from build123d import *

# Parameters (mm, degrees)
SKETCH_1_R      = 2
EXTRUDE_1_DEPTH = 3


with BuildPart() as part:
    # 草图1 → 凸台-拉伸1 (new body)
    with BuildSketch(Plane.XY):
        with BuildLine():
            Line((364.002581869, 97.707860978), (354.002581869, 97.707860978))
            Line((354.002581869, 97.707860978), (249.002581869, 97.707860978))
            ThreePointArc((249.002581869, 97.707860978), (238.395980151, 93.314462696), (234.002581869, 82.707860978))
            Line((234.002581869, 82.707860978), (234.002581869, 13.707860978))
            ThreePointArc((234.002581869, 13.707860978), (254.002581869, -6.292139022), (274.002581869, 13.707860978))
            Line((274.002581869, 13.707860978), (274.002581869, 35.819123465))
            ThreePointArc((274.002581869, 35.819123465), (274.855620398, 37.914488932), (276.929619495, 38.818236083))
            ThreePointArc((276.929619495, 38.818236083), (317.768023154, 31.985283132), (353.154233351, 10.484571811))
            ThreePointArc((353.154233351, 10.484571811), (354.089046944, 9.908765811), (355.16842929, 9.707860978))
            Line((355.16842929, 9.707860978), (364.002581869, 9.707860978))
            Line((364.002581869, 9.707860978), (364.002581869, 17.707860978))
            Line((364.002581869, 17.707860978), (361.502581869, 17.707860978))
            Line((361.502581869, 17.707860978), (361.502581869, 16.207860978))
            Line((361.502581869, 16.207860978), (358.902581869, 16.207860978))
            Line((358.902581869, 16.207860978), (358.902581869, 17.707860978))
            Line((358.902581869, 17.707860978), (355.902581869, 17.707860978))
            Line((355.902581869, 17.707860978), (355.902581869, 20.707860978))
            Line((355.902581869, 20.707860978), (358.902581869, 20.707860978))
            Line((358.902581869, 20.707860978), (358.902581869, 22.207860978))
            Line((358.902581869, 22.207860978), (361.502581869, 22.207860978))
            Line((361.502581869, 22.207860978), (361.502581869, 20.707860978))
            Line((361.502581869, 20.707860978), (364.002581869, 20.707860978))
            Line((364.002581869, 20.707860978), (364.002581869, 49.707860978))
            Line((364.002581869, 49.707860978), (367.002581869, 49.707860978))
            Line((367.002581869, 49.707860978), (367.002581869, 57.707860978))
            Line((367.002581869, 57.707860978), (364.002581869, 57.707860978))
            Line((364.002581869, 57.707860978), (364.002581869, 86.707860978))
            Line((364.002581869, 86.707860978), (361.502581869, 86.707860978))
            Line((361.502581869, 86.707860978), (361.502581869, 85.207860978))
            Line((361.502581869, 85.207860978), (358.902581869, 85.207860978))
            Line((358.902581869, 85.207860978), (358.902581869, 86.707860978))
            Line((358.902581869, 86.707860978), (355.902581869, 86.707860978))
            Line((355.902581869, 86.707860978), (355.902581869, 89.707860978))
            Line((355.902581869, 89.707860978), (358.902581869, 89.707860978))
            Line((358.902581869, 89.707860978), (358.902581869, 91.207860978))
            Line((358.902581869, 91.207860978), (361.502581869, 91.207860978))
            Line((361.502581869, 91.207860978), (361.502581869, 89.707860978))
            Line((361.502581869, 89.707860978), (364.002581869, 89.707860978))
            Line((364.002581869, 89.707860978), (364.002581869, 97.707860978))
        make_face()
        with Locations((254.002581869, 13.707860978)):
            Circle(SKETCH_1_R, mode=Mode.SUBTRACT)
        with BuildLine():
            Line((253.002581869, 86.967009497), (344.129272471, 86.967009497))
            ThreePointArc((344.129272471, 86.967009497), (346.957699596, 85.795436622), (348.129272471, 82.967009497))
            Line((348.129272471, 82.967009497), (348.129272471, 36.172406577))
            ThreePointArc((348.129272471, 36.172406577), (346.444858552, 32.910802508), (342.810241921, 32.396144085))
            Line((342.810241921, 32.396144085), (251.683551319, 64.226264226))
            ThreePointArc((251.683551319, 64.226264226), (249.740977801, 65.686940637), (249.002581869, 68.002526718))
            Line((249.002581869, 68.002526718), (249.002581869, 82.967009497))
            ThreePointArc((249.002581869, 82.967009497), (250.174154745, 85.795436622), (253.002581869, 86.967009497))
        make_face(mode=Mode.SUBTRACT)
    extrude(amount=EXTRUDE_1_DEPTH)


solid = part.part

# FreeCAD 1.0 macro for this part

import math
import FreeCAD as App
import Part
import Sketcher

V = App.Vector
Q = App.Units.Quantity

doc = App.newDocument("Part")
params = doc.addObject("Spreadsheet::Sheet", "Params")
for row, (alias, value) in enumerate([
    ("sketch1_diameter", "4 mm"),
    ("sketch1_radius", "15 mm"),
    ("sketch1_radius2", "20 mm"),
    ("sketch1_radius3", "3 mm"),
    ("sketch1_radius4", "4 mm"),
    ("pad1_length", "3 mm"),
], start=1):
    params.set(f"A{row}", alias)
    params.set(f"B{row}", "=" + value)
    params.setAlias(f"B{row}", alias)

body = doc.addObject("PartDesign::Body", "Body")

# Sketch on XY plane
sketch1 = body.newObject("Sketcher::SketchObject", "Sketch")
sketch1.AttachmentSupport = (doc.getObject("XY_Plane"), [""])
sketch1.MapMode = "FlatFace"
sketch1.addGeometry(Part.LineSegment(V(364.002582, 97.707861, 0), V(249.002582, 97.707861, 0)), False)
sketch1.addGeometry(Part.ArcOfCircle(Part.Circle(V(249.002582, 82.707861, 0), V(0, 0, 1), 15), math.radians(90), math.radians(180)), False)
sketch1.addGeometry(Part.LineSegment(V(234.002582, 82.707861, 0), V(234.002582, 13.707861, 0)), False)
sketch1.addGeometry(Part.ArcOfCircle(Part.Circle(V(254.002582, 13.707861, 0), V(0, 0, 1), 20), math.radians(180), math.radians(360)), False)
sketch1.addGeometry(Part.LineSegment(V(274.002582, 13.707861, 0), V(274.002582, 35.819123, 0)), False)
sketch1.addGeometry(Part.ArcOfCircle(Part.Circle(V(277.002582, 35.819123, 0), V(0, 0, 1), 3), math.radians(91.393616), math.radians(180)), False)
sketch1.addGeometry(Part.ArcOfCircle(Part.Circle(V(279.594261, -70.711645, 0), V(0, 0, 1), 109.562289), math.radians(47.824895), math.radians(91.393616)), False)
sketch1.addGeometry(Part.ArcOfCircle(Part.Circle(V(355.168429, 12.707861, 0), V(0, 0, 1), 3), math.radians(-132.175105), math.radians(-90)), False)
sketch1.addGeometry(Part.LineSegment(V(355.168429, 9.707861, 0), V(364.002582, 9.707861, 0)), False)
sketch1.addGeometry(Part.LineSegment(V(364.002582, 9.707861, 0), V(364.002582, 17.707861, 0)), False)
sketch1.addGeometry(Part.LineSegment(V(364.002582, 17.707861, 0), V(361.502582, 17.707861, 0)), False)
sketch1.addGeometry(Part.LineSegment(V(361.502582, 17.707861, 0), V(361.502582, 16.207861, 0)), False)
sketch1.addGeometry(Part.LineSegment(V(361.502582, 16.207861, 0), V(358.902582, 16.207861, 0)), False)
sketch1.addGeometry(Part.LineSegment(V(358.902582, 16.207861, 0), V(358.902582, 17.707861, 0)), False)
sketch1.addGeometry(Part.LineSegment(V(358.902582, 17.707861, 0), V(355.902582, 17.707861, 0)), False)
sketch1.addGeometry(Part.LineSegment(V(355.902582, 17.707861, 0), V(355.902582, 20.707861, 0)), False)
sketch1.addGeometry(Part.LineSegment(V(355.902582, 20.707861, 0), V(358.902582, 20.707861, 0)), False)
sketch1.addGeometry(Part.LineSegment(V(358.902582, 20.707861, 0), V(358.902582, 22.207861, 0)), False)
sketch1.addGeometry(Part.LineSegment(V(358.902582, 22.207861, 0), V(361.502582, 22.207861, 0)), False)
sketch1.addGeometry(Part.LineSegment(V(361.502582, 22.207861, 0), V(361.502582, 20.707861, 0)), False)
sketch1.addGeometry(Part.LineSegment(V(361.502582, 20.707861, 0), V(364.002582, 20.707861, 0)), False)
sketch1.addGeometry(Part.LineSegment(V(364.002582, 20.707861, 0), V(364.002582, 49.707861, 0)), False)
sketch1.addGeometry(Part.LineSegment(V(364.002582, 49.707861, 0), V(367.002582, 49.707861, 0)), False)
sketch1.addGeometry(Part.LineSegment(V(367.002582, 49.707861, 0), V(367.002582, 57.707861, 0)), False)
sketch1.addGeometry(Part.LineSegment(V(367.002582, 57.707861, 0), V(364.002582, 57.707861, 0)), False)
sketch1.addGeometry(Part.LineSegment(V(364.002582, 57.707861, 0), V(364.002582, 86.707861, 0)), False)
sketch1.addGeometry(Part.LineSegment(V(364.002582, 86.707861, 0), V(361.502582, 86.707861, 0)), False)
sketch1.addGeometry(Part.LineSegment(V(361.502582, 86.707861, 0), V(361.502582, 85.207861, 0)), False)
sketch1.addGeometry(Part.LineSegment(V(361.502582, 85.207861, 0), V(358.902582, 85.207861, 0)), False)
sketch1.addGeometry(Part.LineSegment(V(358.902582, 85.207861, 0), V(358.902582, 86.707861, 0)), False)
sketch1.addGeometry(Part.LineSegment(V(358.902582, 86.707861, 0), V(355.902582, 86.707861, 0)), False)
sketch1.addGeometry(Part.LineSegment(V(355.902582, 86.707861, 0), V(355.902582, 89.707861, 0)), False)
sketch1.addGeometry(Part.LineSegment(V(355.902582, 89.707861, 0), V(358.902582, 89.707861, 0)), False)
sketch1.addGeometry(Part.LineSegment(V(358.902582, 89.707861, 0), V(358.902582, 91.207861, 0)), False)
sketch1.addGeometry(Part.LineSegment(V(358.902582, 91.207861, 0), V(361.502582, 91.207861, 0)), False)
sketch1.addGeometry(Part.LineSegment(V(361.502582, 91.207861, 0), V(361.502582, 89.707861, 0)), False)
sketch1.addGeometry(Part.LineSegment(V(361.502582, 89.707861, 0), V(364.002582, 89.707861, 0)), False)
sketch1.addGeometry(Part.LineSegment(V(364.002582, 89.707861, 0), V(364.002582, 97.707861, 0)), False)
sketch1.addGeometry(Part.Circle(V(254.002582, 13.707861, 0), V(0, 0, 1), 2), False)
sketch1.addGeometry(Part.ArcOfCircle(Part.Circle(V(253.002582, 82.967009, 0), V(0, 0, 1), 4), math.radians(90), math.radians(180)), False)
sketch1.addGeometry(Part.LineSegment(V(253.002582, 86.967009, 0), V(344.129272, 86.967009, 0)), False)
sketch1.addGeometry(Part.ArcOfCircle(Part.Circle(V(344.129272, 82.967009, 0), V(0, 0, 1), 4), math.radians(0), math.radians(90)), False)
sketch1.addGeometry(Part.LineSegment(V(348.129272, 82.967009, 0), V(348.129272, 36.172407, 0)), False)
sketch1.addGeometry(Part.ArcOfCircle(Part.Circle(V(344.129272, 36.172407, 0), V(0, 0, 1), 4), math.radians(-109.254066), math.radians(0)), False)
sketch1.addGeometry(Part.LineSegment(V(342.810242, 32.396144, 0), V(251.683551, 64.226264, 0)), False)
sketch1.addGeometry(Part.ArcOfCircle(Part.Circle(V(253.002582, 68.002527, 0), V(0, 0, 1), 4), math.radians(-180), math.radians(-109.254066)), False)
sketch1.addGeometry(Part.LineSegment(V(249.002582, 68.002527, 0), V(249.002582, 82.967009, 0)), False)
sketch1.addConstraint(Sketcher.Constraint("Tangent", 0, 2, 1, 1))
sketch1.addConstraint(Sketcher.Constraint("Tangent", 1, 2, 2, 1))
sketch1.addConstraint(Sketcher.Constraint("Tangent", 2, 2, 3, 1))
sketch1.addConstraint(Sketcher.Constraint("Tangent", 3, 2, 4, 1))
sketch1.addConstraint(Sketcher.Constraint("Tangent", 4, 2, 5, 2))
sketch1.addConstraint(Sketcher.Constraint("Tangent", 5, 1, 6, 2))
sketch1.addConstraint(Sketcher.Constraint("Tangent", 6, 1, 7, 1))
sketch1.addConstraint(Sketcher.Constraint("Tangent", 7, 2, 8, 1))
sketch1.addConstraint(Sketcher.Constraint("Coincident", 8, 2, 9, 1))
sketch1.addConstraint(Sketcher.Constraint("Coincident", 9, 2, 10, 1))
sketch1.addConstraint(Sketcher.Constraint("Coincident", 10, 2, 11, 1))
sketch1.addConstraint(Sketcher.Constraint("Coincident", 11, 2, 12, 1))
sketch1.addConstraint(Sketcher.Constraint("Coincident", 12, 2, 13, 1))
sketch1.addConstraint(Sketcher.Constraint("Coincident", 13, 2, 14, 1))
sketch1.addConstraint(Sketcher.Constraint("Coincident", 14, 2, 15, 1))
sketch1.addConstraint(Sketcher.Constraint("Coincident", 15, 2, 16, 1))
sketch1.addConstraint(Sketcher.Constraint("Coincident", 16, 2, 17, 1))
sketch1.addConstraint(Sketcher.Constraint("Coincident", 17, 2, 18, 1))
sketch1.addConstraint(Sketcher.Constraint("Coincident", 18, 2, 19, 1))
sketch1.addConstraint(Sketcher.Constraint("Coincident", 19, 2, 20, 1))
sketch1.addConstraint(Sketcher.Constraint("Coincident", 20, 2, 21, 1))
sketch1.addConstraint(Sketcher.Constraint("Coincident", 21, 2, 22, 1))
sketch1.addConstraint(Sketcher.Constraint("Coincident", 22, 2, 23, 1))
sketch1.addConstraint(Sketcher.Constraint("Coincident", 23, 2, 24, 1))
sketch1.addConstraint(Sketcher.Constraint("Coincident", 24, 2, 25, 1))
sketch1.addConstraint(Sketcher.Constraint("Coincident", 25, 2, 26, 1))
sketch1.addConstraint(Sketcher.Constraint("Coincident", 26, 2, 27, 1))
sketch1.addConstraint(Sketcher.Constraint("Coincident", 27, 2, 28, 1))
sketch1.addConstraint(Sketcher.Constraint("Coincident", 28, 2, 29, 1))
sketch1.addConstraint(Sketcher.Constraint("Coincident", 29, 2, 30, 1))
sketch1.addConstraint(Sketcher.Constraint("Coincident", 30, 2, 31, 1))
sketch1.addConstraint(Sketcher.Constraint("Coincident", 31, 2, 32, 1))
sketch1.addConstraint(Sketcher.Constraint("Coincident", 32, 2, 33, 1))
sketch1.addConstraint(Sketcher.Constraint("Coincident", 33, 2, 34, 1))
sketch1.addConstraint(Sketcher.Constraint("Coincident", 34, 2, 35, 1))
sketch1.addConstraint(Sketcher.Constraint("Coincident", 35, 2, 36, 1))
sketch1.addConstraint(Sketcher.Constraint("Coincident", 36, 2, 37, 1))
sketch1.addConstraint(Sketcher.Constraint("Coincident", 37, 2, 0, 1))
sketch1.addConstraint(Sketcher.Constraint("Tangent", 39, 1, 40, 1))
sketch1.addConstraint(Sketcher.Constraint("Tangent", 40, 2, 41, 2))
sketch1.addConstraint(Sketcher.Constraint("Tangent", 41, 1, 42, 1))
sketch1.addConstraint(Sketcher.Constraint("Tangent", 42, 2, 43, 2))
sketch1.addConstraint(Sketcher.Constraint("Tangent", 43, 1, 44, 1))
sketch1.addConstraint(Sketcher.Constraint("Tangent", 44, 2, 45, 2))
sketch1.addConstraint(Sketcher.Constraint("Tangent", 45, 1, 46, 1))
sketch1.addConstraint(Sketcher.Constraint("Tangent", 46, 2, 39, 2))
sketch1.addConstraint(Sketcher.Constraint("Horizontal", 0))
sketch1.addConstraint(Sketcher.Constraint("Vertical", 2))
sketch1.addConstraint(Sketcher.Constraint("Vertical", 4))
sketch1.addConstraint(Sketcher.Constraint("Horizontal", 8))
sketch1.addConstraint(Sketcher.Constraint("Vertical", 9))
sketch1.addConstraint(Sketcher.Constraint("Horizontal", 10))
sketch1.addConstraint(Sketcher.Constraint("Vertical", 11))
sketch1.addConstraint(Sketcher.Constraint("Horizontal", 12))
sketch1.addConstraint(Sketcher.Constraint("Vertical", 13))
sketch1.addConstraint(Sketcher.Constraint("Horizontal", 14))
sketch1.addConstraint(Sketcher.Constraint("Vertical", 15))
sketch1.addConstraint(Sketcher.Constraint("Horizontal", 16))
sketch1.addConstraint(Sketcher.Constraint("Vertical", 17))
sketch1.addConstraint(Sketcher.Constraint("Horizontal", 18))
sketch1.addConstraint(Sketcher.Constraint("Vertical", 19))
sketch1.addConstraint(Sketcher.Constraint("Horizontal", 20))
sketch1.addConstraint(Sketcher.Constraint("Vertical", 21))
sketch1.addConstraint(Sketcher.Constraint("Horizontal", 22))
sketch1.addConstraint(Sketcher.Constraint("Vertical", 23))
sketch1.addConstraint(Sketcher.Constraint("Horizontal", 24))
sketch1.addConstraint(Sketcher.Constraint("Vertical", 25))
sketch1.addConstraint(Sketcher.Constraint("Horizontal", 26))
sketch1.addConstraint(Sketcher.Constraint("Vertical", 27))
sketch1.addConstraint(Sketcher.Constraint("Horizontal", 28))
sketch1.addConstraint(Sketcher.Constraint("Vertical", 29))
sketch1.addConstraint(Sketcher.Constraint("Horizontal", 30))
sketch1.addConstraint(Sketcher.Constraint("Vertical", 31))
sketch1.addConstraint(Sketcher.Constraint("Horizontal", 32))
sketch1.addConstraint(Sketcher.Constraint("Vertical", 33))
sketch1.addConstraint(Sketcher.Constraint("Horizontal", 34))
sketch1.addConstraint(Sketcher.Constraint("Vertical", 35))
sketch1.addConstraint(Sketcher.Constraint("Horizontal", 36))
sketch1.addConstraint(Sketcher.Constraint("Vertical", 37))
sketch1.addConstraint(Sketcher.Constraint("Horizontal", 40))
sketch1.addConstraint(Sketcher.Constraint("Vertical", 42))
sketch1.addConstraint(Sketcher.Constraint("Vertical", 46))
sketch1.addConstraint(Sketcher.Constraint("Coincident", 38, 3, 3, 3))
sketch1.addConstraint(Sketcher.Constraint("Equal", 5, 7))
sketch1.addConstraint(Sketcher.Constraint("Equal", 39, 41))
sketch1.addConstraint(Sketcher.Constraint("Equal", 41, 43))
sketch1.addConstraint(Sketcher.Constraint("Equal", 43, 45))
sketch1.addConstraint(Sketcher.Constraint("Horizontal", 10, 2, 13, 2))
sketch1.addConstraint(Sketcher.Constraint("Horizontal", 16, 2, 19, 2))
sketch1.addConstraint(Sketcher.Constraint("Horizontal", 26, 2, 29, 2))
sketch1.addConstraint(Sketcher.Constraint("Horizontal", 32, 2, 35, 2))
sketch1.addConstraint(Sketcher.Constraint("Vertical", 13, 2, 16, 2))
sketch1.addConstraint(Sketcher.Constraint("Vertical", 11, 2, 18, 2))
sketch1.addConstraint(Sketcher.Constraint("Vertical", 9, 2, 20, 2))
sketch1.addConstraint(Sketcher.Constraint("Vertical", 21, 2, 24, 2))
sketch1.addConstraint(Sketcher.Constraint("Vertical", 19, 2, 26, 2))
sketch1.addConstraint(Sketcher.Constraint("Vertical", 17, 2, 28, 2))
sketch1.addConstraint(Sketcher.Constraint("Vertical", 15, 2, 30, 2))
sketch1.addConstraint(Sketcher.Constraint("Vertical", 29, 2, 32, 2))
sketch1.addConstraint(Sketcher.Constraint("Vertical", 27, 2, 34, 2))
sketch1.addConstraint(Sketcher.Constraint("Vertical", 25, 2, 36, 2))
sketch1.addConstraint(Sketcher.Constraint("Vertical", 0, 2, 45, 1))
sketch1.addConstraint(Sketcher.Constraint("Equal", 16, 22))
sketch1.addConstraint(Sketcher.Constraint("Equal", 32, 15))
sketch1.addConstraint(Sketcher.Constraint("Equal", 13, 17))
sketch1.addConstraint(Sketcher.Constraint("Equal", 9, 23))
sketch1.addConstraint(Sketcher.Constraint("Equal", 21, 25))
sketch1.addConstraint(Sketcher.Constraint("Equal", 19, 27))
sketch1.addConstraint(Sketcher.Constraint("Equal", 15, 31))
sketch1.addConstraint(Sketcher.Constraint("Equal", 29, 33))
sketch1.addConstraint(Sketcher.Constraint("Equal", 23, 37))
sketch1.addConstraint(Sketcher.Constraint("Diameter", 38, Q("4 mm")))
sketch1.addConstraint(Sketcher.Constraint("Radius", 1, Q("15 mm")))
sketch1.addConstraint(Sketcher.Constraint("Radius", 3, Q("20 mm")))
sketch1.addConstraint(Sketcher.Constraint("Radius", 5, Q("3 mm")))
sketch1.addConstraint(Sketcher.Constraint("Radius", 39, Q("4 mm")))
sketch1.addConstraint(Sketcher.Constraint("DistanceX", 0, 2, 0, 1, Q("115 mm")))
sketch1.addConstraint(Sketcher.Constraint("DistanceX", 14, 2, 14, 1, Q("3 mm")))
sketch1.addConstraint(Sketcher.Constraint("DistanceY", 2, 2, 2, 1, Q("69 mm")))
sketch1.addConstraint(Sketcher.Constraint("DistanceY", 9, 1, 9, 2, Q("8 mm")))
sketch1.addConstraint(Sketcher.Constraint("DistanceY", 21, 1, 21, 2, Q("29 mm")))
sketch1.addConstraint(Sketcher.Constraint("DistanceX", 10, 2, 10, 1, Q("2.5 mm")))
sketch1.addConstraint(Sketcher.Constraint("DistanceX", 12, 2, 12, 1, Q("2.6 mm")))
sketch1.addConstraint(Sketcher.Constraint("DistanceY", 11, 2, 11, 1, Q("1.5 mm")))
sketch1.addConstraint(Sketcher.Constraint("Radius", 6, Q("109.562289 mm")))
sketch1.addConstraint(Sketcher.Constraint("Distance", 44, Q("96.525801 mm")))
sketch1.addConstraint(Sketcher.Constraint("DistanceX", 40, 1, 40, 2, Q("91.126691 mm")))
sketch1.addConstraint(Sketcher.Constraint("DistanceX", 8, 1, 8, 2, Q("8.834153 mm")))
sketch1.addConstraint(Sketcher.Constraint("DistanceY", 4, 1, 4, 2, Q("22.111262 mm")))
sketch1.addConstraint(Sketcher.Constraint("DistanceY", 42, 2, 42, 1, Q("46.794603 mm")))
sketch1.addConstraint(Sketcher.Constraint("DistanceX", -1, 1, 1, 3, Q("249.002582 mm")))
sketch1.addConstraint(Sketcher.Constraint("DistanceY", -1, 1, 1, 3, Q("82.707861 mm")))
sketch1.addConstraint(Sketcher.Constraint("DistanceY", -1, 1, 39, 3, Q("82.967009 mm")))
sketch1.setExpression("Constraints[111]", "Params.sketch1_diameter")
sketch1.setExpression("Constraints[112]", "Params.sketch1_radius")
sketch1.setExpression("Constraints[113]", "Params.sketch1_radius2")
sketch1.setExpression("Constraints[114]", "Params.sketch1_radius3")
sketch1.setExpression("Constraints[115]", "Params.sketch1_radius4")
pad1 = body.newObject("PartDesign::Pad", "Pad")
pad1.Profile = sketch1
pad1.setExpression("Length", "Params.pad1_length")

doc.recompute()
